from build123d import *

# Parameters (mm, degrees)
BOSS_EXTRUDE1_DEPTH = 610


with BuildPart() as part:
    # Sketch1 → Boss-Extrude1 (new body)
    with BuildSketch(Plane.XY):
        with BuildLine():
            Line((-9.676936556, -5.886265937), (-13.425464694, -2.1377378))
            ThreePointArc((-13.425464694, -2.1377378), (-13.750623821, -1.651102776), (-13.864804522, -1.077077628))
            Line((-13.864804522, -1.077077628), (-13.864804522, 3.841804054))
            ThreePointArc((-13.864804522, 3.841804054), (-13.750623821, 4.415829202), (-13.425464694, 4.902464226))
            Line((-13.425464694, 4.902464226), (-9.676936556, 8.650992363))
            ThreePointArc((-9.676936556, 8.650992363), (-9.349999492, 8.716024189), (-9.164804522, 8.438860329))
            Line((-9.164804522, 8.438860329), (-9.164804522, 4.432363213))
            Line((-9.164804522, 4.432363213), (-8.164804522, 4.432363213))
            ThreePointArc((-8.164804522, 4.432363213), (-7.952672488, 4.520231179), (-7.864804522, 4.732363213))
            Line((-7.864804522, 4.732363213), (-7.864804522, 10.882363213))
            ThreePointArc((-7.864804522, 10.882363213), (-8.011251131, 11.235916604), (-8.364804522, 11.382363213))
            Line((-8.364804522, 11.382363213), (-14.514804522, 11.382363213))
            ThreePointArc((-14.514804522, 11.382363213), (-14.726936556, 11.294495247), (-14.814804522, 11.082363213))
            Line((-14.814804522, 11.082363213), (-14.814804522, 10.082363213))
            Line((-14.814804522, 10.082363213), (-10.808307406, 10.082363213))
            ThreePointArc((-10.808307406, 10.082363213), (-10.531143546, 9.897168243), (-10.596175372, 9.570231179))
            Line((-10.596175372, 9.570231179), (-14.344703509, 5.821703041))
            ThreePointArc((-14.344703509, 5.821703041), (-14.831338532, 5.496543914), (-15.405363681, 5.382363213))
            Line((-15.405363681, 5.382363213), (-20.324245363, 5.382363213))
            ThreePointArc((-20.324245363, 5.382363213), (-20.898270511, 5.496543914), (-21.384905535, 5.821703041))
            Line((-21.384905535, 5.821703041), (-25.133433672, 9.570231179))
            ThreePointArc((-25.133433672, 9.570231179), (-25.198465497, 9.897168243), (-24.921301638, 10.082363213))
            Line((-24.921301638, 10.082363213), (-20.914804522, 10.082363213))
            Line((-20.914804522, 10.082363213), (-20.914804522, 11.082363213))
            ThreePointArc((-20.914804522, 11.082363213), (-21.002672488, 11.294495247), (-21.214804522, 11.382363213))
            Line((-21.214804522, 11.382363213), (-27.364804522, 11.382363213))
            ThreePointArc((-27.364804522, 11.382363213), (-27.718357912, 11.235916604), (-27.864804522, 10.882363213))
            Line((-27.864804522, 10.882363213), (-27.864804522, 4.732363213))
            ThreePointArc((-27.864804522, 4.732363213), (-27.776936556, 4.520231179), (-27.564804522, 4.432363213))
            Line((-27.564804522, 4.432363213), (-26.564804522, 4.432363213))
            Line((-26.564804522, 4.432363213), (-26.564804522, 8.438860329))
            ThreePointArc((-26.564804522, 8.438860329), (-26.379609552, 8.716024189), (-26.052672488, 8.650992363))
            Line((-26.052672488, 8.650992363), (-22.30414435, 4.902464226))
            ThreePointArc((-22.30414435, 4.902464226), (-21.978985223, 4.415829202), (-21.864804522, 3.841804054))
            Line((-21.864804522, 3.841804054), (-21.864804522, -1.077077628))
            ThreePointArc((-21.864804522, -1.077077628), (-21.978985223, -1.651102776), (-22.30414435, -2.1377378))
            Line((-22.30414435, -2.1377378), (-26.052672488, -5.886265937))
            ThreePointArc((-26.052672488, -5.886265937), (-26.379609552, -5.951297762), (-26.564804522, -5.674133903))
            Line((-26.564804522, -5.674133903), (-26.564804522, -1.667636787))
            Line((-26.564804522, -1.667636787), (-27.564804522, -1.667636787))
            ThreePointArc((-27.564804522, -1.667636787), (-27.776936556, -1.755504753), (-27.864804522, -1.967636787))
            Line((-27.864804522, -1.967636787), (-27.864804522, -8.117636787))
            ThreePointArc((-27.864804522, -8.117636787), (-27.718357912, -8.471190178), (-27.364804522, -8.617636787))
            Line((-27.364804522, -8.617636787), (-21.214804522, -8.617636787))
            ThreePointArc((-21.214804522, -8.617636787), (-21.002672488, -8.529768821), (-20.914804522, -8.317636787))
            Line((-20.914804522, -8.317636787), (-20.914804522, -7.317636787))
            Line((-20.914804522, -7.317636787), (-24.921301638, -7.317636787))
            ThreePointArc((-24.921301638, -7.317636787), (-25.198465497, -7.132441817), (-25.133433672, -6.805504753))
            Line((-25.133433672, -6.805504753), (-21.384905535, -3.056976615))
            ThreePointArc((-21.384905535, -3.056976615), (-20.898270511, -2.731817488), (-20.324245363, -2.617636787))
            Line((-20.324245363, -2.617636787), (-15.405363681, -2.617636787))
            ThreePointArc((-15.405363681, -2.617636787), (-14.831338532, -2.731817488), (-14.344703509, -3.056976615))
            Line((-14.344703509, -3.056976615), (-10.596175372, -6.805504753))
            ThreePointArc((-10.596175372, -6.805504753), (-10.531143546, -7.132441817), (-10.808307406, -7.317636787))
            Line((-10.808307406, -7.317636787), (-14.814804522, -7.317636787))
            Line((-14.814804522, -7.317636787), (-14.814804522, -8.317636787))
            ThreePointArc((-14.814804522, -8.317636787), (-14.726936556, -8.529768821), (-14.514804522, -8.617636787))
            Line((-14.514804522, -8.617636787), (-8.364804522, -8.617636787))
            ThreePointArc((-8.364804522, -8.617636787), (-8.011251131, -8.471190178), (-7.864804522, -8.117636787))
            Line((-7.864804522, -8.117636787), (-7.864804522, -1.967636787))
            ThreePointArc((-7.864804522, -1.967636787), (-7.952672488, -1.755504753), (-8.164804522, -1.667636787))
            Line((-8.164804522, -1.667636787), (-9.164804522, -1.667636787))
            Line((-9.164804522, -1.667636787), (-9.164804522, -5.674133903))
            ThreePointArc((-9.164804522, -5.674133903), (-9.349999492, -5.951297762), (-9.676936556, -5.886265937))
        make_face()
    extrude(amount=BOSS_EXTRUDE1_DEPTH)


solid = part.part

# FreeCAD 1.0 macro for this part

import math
import FreeCAD as App
import Part
import Sketcher

doc = App.newDocument("Part")
body = doc.addObject("PartDesign::Body", "Body")

sketch1 = body.newObject("Sketcher::SketchObject", "Sketch")
sketch1.AttachmentSupport = (doc.getObject("XY_Plane"), [""])
sketch1.MapMode = "FlatFace"
sketch1.addGeometry(Part.LineSegment(App.Vector(-9.676937, -5.886266, 0), App.Vector(-13.425465, -2.137738, 0)), False)
sketch1.addGeometry(Part.ArcOfCircle(Part.Circle(App.Vector(-12.364805, -1.077078, 0), App.Vector(0, 0, 1), 1.5), math.radians(180), math.radians(225)), False)
sketch1.addGeometry(Part.LineSegment(App.Vector(-13.864805, -1.077078, 0), App.Vector(-13.864805, 3.841804, 0)), False)
sketch1.addGeometry(Part.ArcOfCircle(Part.Circle(App.Vector(-12.364805, 3.841804, 0), App.Vector(0, 0, 1), 1.5), math.radians(135), math.radians(180)), False)
sketch1.addGeometry(Part.LineSegment(App.Vector(-13.425465, 4.902464, 0), App.Vector(-9.676937, 8.650992, 0)), False)
sketch1.addGeometry(Part.ArcOfCircle(Part.Circle(App.Vector(-9.464805, 8.43886, 0), App.Vector(0, 0, 1), 0.3), math.radians(0), math.radians(135)), False)
sketch1.addGeometry(Part.LineSegment(App.Vector(-9.164805, 8.43886, 0), App.Vector(-9.164805, 4.432363, 0)), False)
sketch1.addGeometry(Part.LineSegment(App.Vector(-9.164805, 4.432363, 0), App.Vector(-8.164805, 4.432363, 0)), False)
sketch1.addGeometry(Part.ArcOfCircle(Part.Circle(App.Vector(-8.164805, 4.732363, 0), App.Vector(0, 0, 1), 0.3), math.radians(-90), math.radians(0)), False)
sketch1.addGeometry(Part.LineSegment(App.Vector(-7.864805, 4.732363, 0), App.Vector(-7.864805, 10.882363, 0)), False)
sketch1.addGeometry(Part.ArcOfCircle(Part.Circle(App.Vector(-8.364805, 10.882363, 0), App.Vector(0, 0, 1), 0.5), math.radians(0), math.radians(90)), False)
sketch1.addGeometry(Part.LineSegment(App.Vector(-8.364805, 11.382363, 0), App.Vector(-14.514805, 11.382363, 0)), False)
sketch1.addGeometry(Part.ArcOfCircle(Part.Circle(App.Vector(-14.514805, 11.082363, 0), App.Vector(0, 0, 1), 0.3), math.radians(90), math.radians(180)), False)
sketch1.addGeometry(Part.LineSegment(App.Vector(-14.814805, 11.082363, 0), App.Vector(-14.814805, 10.082363, 0)), False)
sketch1.addGeometry(Part.LineSegment(App.Vector(-14.814805, 10.082363, 0), App.Vector(-10.808307, 10.082363, 0)), False)
sketch1.addGeometry(Part.ArcOfCircle(Part.Circle(App.Vector(-10.808307, 9.782363, 0), App.Vector(0, 0, 1), 0.3), math.radians(-45), math.radians(90)), False)
sketch1.addGeometry(Part.LineSegment(App.Vector(-10.596175, 9.570231, 0), App.Vector(-14.344704, 5.821703, 0)), False)
sketch1.addGeometry(Part.ArcOfCircle(Part.Circle(App.Vector(-15.405364, 6.882363, 0), App.Vector(0, 0, 1), 1.5), math.radians(-90), math.radians(-45)), False)
sketch1.addGeometry(Part.LineSegment(App.Vector(-15.405364, 5.382363, 0), App.Vector(-20.324245, 5.382363, 0)), False)
sketch1.addGeometry(Part.ArcOfCircle(Part.Circle(App.Vector(-20.324245, 6.882363, 0), App.Vector(0, 0, 1), 1.5), math.radians(-135), math.radians(-90)), False)
sketch1.addGeometry(Part.LineSegment(App.Vector(-21.384906, 5.821703, 0), App.Vector(-25.133434, 9.570231, 0)), False)
sketch1.addGeometry(Part.ArcOfCircle(Part.Circle(App.Vector(-24.921302, 9.782363, 0), App.Vector(0, 0, 1), 0.3), math.radians(90), math.radians(225)), False)
sketch1.addGeometry(Part.LineSegment(App.Vector(-24.921302, 10.082363, 0), App.Vector(-20.914805, 10.082363, 0)), False)
sketch1.addGeometry(Part.LineSegment(App.Vector(-20.914805, 10.082363, 0), App.Vector(-20.914805, 11.082363, 0)), False)
sketch1.addGeometry(Part.ArcOfCircle(Part.Circle(App.Vector(-21.214805, 11.082363, 0), App.Vector(0, 0, 1), 0.3), math.radians(0), math.radians(90)), False)
sketch1.addGeometry(Part.LineSegment(App.Vector(-21.214805, 11.382363, 0), App.Vector(-27.364805, 11.382363, 0)), False)
sketch1.addGeometry(Part.ArcOfCircle(Part.Circle(App.Vector(-27.364805, 10.882363, 0), App.Vector(0, 0, 1), 0.5), math.radians(90), math.radians(180)), False)
sketch1.addGeometry(Part.LineSegment(App.Vector(-27.864805, 10.882363, 0), App.Vector(-27.864805, 4.732363, 0)), False)
sketch1.addGeometry(Part.ArcOfCircle(Part.Circle(App.Vector(-27.564805, 4.732363, 0), App.Vector(0, 0, 1), 0.3), math.radians(-180), math.radians(-90)), False)
sketch1.addGeometry(Part.LineSegment(App.Vector(-27.564805, 4.432363, 0), App.Vector(-26.564805, 4.432363, 0)), False)
sketch1.addGeometry(Part.LineSegment(App.Vector(-26.564805, 4.432363, 0), App.Vector(-26.564805, 8.43886, 0)), False)
sketch1.addGeometry(Part.ArcOfCircle(Part.Circle(App.Vector(-26.264805, 8.43886, 0), App.Vector(0, 0, 1), 0.3), math.radians(45), math.radians(180)), False)
sketch1.addGeometry(Part.LineSegment(App.Vector(-26.052672, 8.650992, 0), App.Vector(-22.304144, 4.902464, 0)), False)
sketch1.addGeometry(Part.ArcOfCircle(Part.Circle(App.Vector(-23.364805, 3.841804, 0), App.Vector(0, 0, 1), 1.5), math.radians(0), math.radians(45)), False)
sketch1.addGeometry(Part.LineSegment(App.Vector(-21.864805, 3.841804, 0), App.Vector(-21.864805, -1.077078, 0)), False)
sketch1.addGeometry(Part.ArcOfCircle(Part.Circle(App.Vector(-23.364805, -1.077078, 0), App.Vector(0, 0, 1), 1.5), math.radians(-45), math.radians(0)), False)
sketch1.addGeometry(Part.LineSegment(App.Vector(-22.304144, -2.137738, 0), App.Vector(-26.052672, -5.886266, 0)), False)
sketch1.addGeometry(Part.ArcOfCircle(Part.Circle(App.Vector(-26.264805, -5.674134, 0), App.Vector(0, 0, 1), 0.3), math.radians(-180), math.radians(-45)), False)
sketch1.addGeometry(Part.LineSegment(App.Vector(-26.564805, -5.674134, 0), App.Vector(-26.564805, -1.667637, 0)), False)
sketch1.addGeometry(Part.LineSegment(App.Vector(-26.564805, -1.667637, 0), App.Vector(-27.564805, -1.667637, 0)), False)
sketch1.addGeometry(Part.ArcOfCircle(Part.Circle(App.Vector(-27.564805, -1.967637, 0), App.Vector(0, 0, 1), 0.3), math.radians(90), math.radians(180)), False)
sketch1.addGeometry(Part.LineSegment(App.Vector(-27.864805, -1.967637, 0), App.Vector(-27.864805, -8.117637, 0)), False)
sketch1.addGeometry(Part.ArcOfCircle(Part.Circle(App.Vector(-27.364805, -8.117637, 0), App.Vector(0, 0, 1), 0.5), math.radians(180), math.radians(270)), False)
sketch1.addGeometry(Part.LineSegment(App.Vector(-27.364805, -8.617637, 0), App.Vector(-21.214805, -8.617637, 0)), False)
sketch1.addGeometry(Part.ArcOfCircle(Part.Circle(App.Vector(-21.214805, -8.317637, 0), App.Vector(0, 0, 1), 0.3), math.radians(-90), math.radians(0)), False)
sketch1.addGeometry(Part.LineSegment(App.Vector(-20.914805, -8.317637, 0), App.Vector(-20.914805, -7.317637, 0)), False)
sketch1.addGeometry(Part.LineSegment(App.Vector(-20.914805, -7.317637, 0), App.Vector(-24.921302, -7.317637, 0)), False)
sketch1.addGeometry(Part.ArcOfCircle(Part.Circle(App.Vector(-24.921302, -7.017637, 0), App.Vector(0, 0, 1), 0.3), math.radians(135), math.radians(270)), False)
sketch1.addGeometry(Part.LineSegment(App.Vector(-25.133434, -6.805505, 0), App.Vector(-21.384906, -3.056977, 0)), False)
sketch1.addGeometry(Part.ArcOfCircle(Part.Circle(App.Vector(-20.324245, -4.117637, 0), App.Vector(0, 0, 1), 1.5), math.radians(90), math.radians(135)), False)
sketch1.addGeometry(Part.LineSegment(App.Vector(-20.324245, -2.617637, 0), App.Vector(-15.405364, -2.617637, 0)), False)
sketch1.addGeometry(Part.ArcOfCircle(Part.Circle(App.Vector(-15.405364, -4.117637, 0), App.Vector(0, 0, 1), 1.5), math.radians(45), math.radians(90)), False)
sketch1.addGeometry(Part.LineSegment(App.Vector(-14.344704, -3.056977, 0), App.Vector(-10.596175, -6.805505, 0)), False)
sketch1.addGeometry(Part.ArcOfCircle(Part.Circle(App.Vector(-10.808307, -7.017637, 0), App.Vector(0, 0, 1), 0.3), math.radians(-90), math.radians(45)), False)
sketch1.addGeometry(Part.LineSegment(App.Vector(-10.808307, -7.317637, 0), App.Vector(-14.814805, -7.317637, 0)), False)
sketch1.addGeometry(Part.LineSegment(App.Vector(-14.814805, -7.317637, 0), App.Vector(-14.814805, -8.317637, 0)), False)
sketch1.addGeometry(Part.ArcOfCircle(Part.Circle(App.Vector(-14.514805, -8.317637, 0), App.Vector(0, 0, 1), 0.3), math.radians(-180), math.radians(-90)), False)
sketch1.addGeometry(Part.LineSegment(App.Vector(-14.514805, -8.617637, 0), App.Vector(-8.364805, -8.617637, 0)), False)
sketch1.addGeometry(Part.ArcOfCircle(Part.Circle(App.Vector(-8.364805, -8.117637, 0), App.Vector(0, 0, 1), 0.5), math.radians(-90), math.radians(0)), False)
sketch1.addGeometry(Part.LineSegment(App.Vector(-7.864805, -8.117637, 0), App.Vector(-7.864805, -1.967637, 0)), False)
sketch1.addGeometry(Part.ArcOfCircle(Part.Circle(App.Vector(-8.164805, -1.967637, 0), App.Vector(0, 0, 1), 0.3), math.radians(0), math.radians(90)), False)
sketch1.addGeometry(Part.LineSegment(App.Vector(-8.164805, -1.667637, 0), App.Vector(-9.164805, -1.667637, 0)), False)
sketch1.addGeometry(Part.LineSegment(App.Vector(-9.164805, -1.667637, 0), App.Vector(-9.164805, -5.674134, 0)), False)
sketch1.addGeometry(Part.ArcOfCircle(Part.Circle(App.Vector(-9.464805, -5.674134, 0), App.Vector(0, 0, 1), 0.3), math.radians(-135), math.radians(0)), False)
sketch1.addConstraint(Sketcher.Constraint("Tangent", 0, 2, 1, 2))
sketch1.addConstraint(Sketcher.Constraint("Tangent", 1, 1, 2, 1))
sketch1.addConstraint(Sketcher.Constraint("Tangent", 2, 2, 3, 2))
sketch1.addConstraint(Sketcher.Constraint("Tangent", 3, 1, 4, 1))
sketch1.addConstraint(Sketcher.Constraint("Tangent", 4, 2, 5, 2))
sketch1.addConstraint(Sketcher.Constraint("Tangent", 5, 1, 6, 1))
sketch1.addConstraint(Sketcher.Constraint("Coincident", 6, 2, 7, 1))
sketch1.addConstraint(Sketcher.Constraint("Tangent", 7, 2, 8, 1))
sketch1.addConstraint(Sketcher.Constraint("Tangent", 8, 2, 9, 1))
sketch1.addConstraint(Sketcher.Constraint("Tangent", 9, 2, 10, 1))
sketch1.addConstraint(Sketcher.Constraint("Tangent", 10, 2, 11, 1))
sketch1.addConstraint(Sketcher.Constraint("Tangent", 11, 2, 12, 1))
sketch1.addConstraint(Sketcher.Constraint("Tangent", 12, 2, 13, 1))
sketch1.addConstraint(Sketcher.Constraint("Coincident", 13, 2, 14, 1))
sketch1.addConstraint(Sketcher.Constraint("Tangent", 14, 2, 15, 2))
sketch1.addConstraint(Sketcher.Constraint("Tangent", 15, 1, 16, 1))
sketch1.addConstraint(Sketcher.Constraint("Tangent", 16, 2, 17, 2))
sketch1.addConstraint(Sketcher.Constraint("Tangent", 17, 1, 18, 1))
sketch1.addConstraint(Sketcher.Constraint("Tangent", 18, 2, 19, 2))
sketch1.addConstraint(Sketcher.Constraint("Tangent", 19, 1, 20, 1))
sketch1.addConstraint(Sketcher.Constraint("Tangent", 20, 2, 21, 2))
sketch1.addConstraint(Sketcher.Constraint("Tangent", 21, 1, 22, 1))
sketch1.addConstraint(Sketcher.Constraint("Coincident", 22, 2, 23, 1))
sketch1.addConstraint(Sketcher.Constraint("Tangent", 23, 2, 24, 1))
sketch1.addConstraint(Sketcher.Constraint("Tangent", 24, 2, 25, 1))
sketch1.addConstraint(Sketcher.Constraint("Tangent", 25, 2, 26, 1))
sketch1.addConstraint(Sketcher.Constraint("Tangent", 26, 2, 27, 1))
sketch1.addConstraint(Sketcher.Constraint("Tangent", 27, 2, 28, 1))
sketch1.addConstraint(Sketcher.Constraint("Tangent", 28, 2, 29, 1))
sketch1.addConstraint(Sketcher.Constraint("Coincident", 29, 2, 30, 1))
sketch1.addConstraint(Sketcher.Constraint("Tangent", 30, 2, 31, 2))
sketch1.addConstraint(Sketcher.Constraint("Tangent", 31, 1, 32, 1))
sketch1.addConstraint(Sketcher.Constraint("Tangent", 32, 2, 33, 2))
sketch1.addConstraint(Sketcher.Constraint("Tangent", 33, 1, 34, 1))
sketch1.addConstraint(Sketcher.Constraint("Tangent", 34, 2, 35, 2))
sketch1.addConstraint(Sketcher.Constraint("Tangent", 35, 1, 36, 1))
sketch1.addConstraint(Sketcher.Constraint("Tangent", 36, 2, 37, 2))
sketch1.addConstraint(Sketcher.Constraint("Tangent", 37, 1, 38, 1))
sketch1.addConstraint(Sketcher.Constraint("Coincident", 38, 2, 39, 1))
sketch1.addConstraint(Sketcher.Constraint("Tangent", 39, 2, 40, 1))
sketch1.addConstraint(Sketcher.Constraint("Tangent", 40, 2, 41, 1))
sketch1.addConstraint(Sketcher.Constraint("Tangent", 41, 2, 42, 1))
sketch1.addConstraint(Sketcher.Constraint("Tangent", 42, 2, 43, 1))
sketch1.addConstraint(Sketcher.Constraint("Tangent", 43, 2, 44, 1))
sketch1.addConstraint(Sketcher.Constraint("Tangent", 44, 2, 45, 1))
sketch1.addConstraint(Sketcher.Constraint("Coincident", 45, 2, 46, 1))
sketch1.addConstraint(Sketcher.Constraint("Tangent", 46, 2, 47, 2))
sketch1.addConstraint(Sketcher.Constraint("Tangent", 47, 1, 48, 1))
sketch1.addConstraint(Sketcher.Constraint("Tangent", 48, 2, 49, 2))
sketch1.addConstraint(Sketcher.Constraint("Tangent", 49, 1, 50, 1))
sketch1.addConstraint(Sketcher.Constraint("Tangent", 50, 2, 51, 2))
sketch1.addConstraint(Sketcher.Constraint("Tangent", 51, 1, 52, 1))
sketch1.addConstraint(Sketcher.Constraint("Tangent", 52, 2, 53, 2))
sketch1.addConstraint(Sketcher.Constraint("Tangent", 53, 1, 54, 1))
sketch1.addConstraint(Sketcher.Constraint("Coincident", 54, 2, 55, 1))
sketch1.addConstraint(Sketcher.Constraint("Tangent", 55, 2, 56, 1))
sketch1.addConstraint(Sketcher.Constraint("Tangent", 56, 2, 57, 1))
sketch1.addConstraint(Sketcher.Constraint("Tangent", 57, 2, 58, 1))
sketch1.addConstraint(Sketcher.Constraint("Tangent", 58, 2, 59, 1))
sketch1.addConstraint(Sketcher.Constraint("Tangent", 59, 2, 60, 1))
sketch1.addConstraint(Sketcher.Constraint("Tangent", 60, 2, 61, 1))
sketch1.addConstraint(Sketcher.Constraint("Coincident", 61, 2, 62, 1))
sketch1.addConstraint(Sketcher.Constraint("Tangent", 62, 2, 63, 2))
sketch1.addConstraint(Sketcher.Constraint("Tangent", 63, 1, 0, 1))
sketch1.addConstraint(Sketcher.Constraint("Vertical", 2))
sketch1.addConstraint(Sketcher.Constraint("Vertical", 6))
sketch1.addConstraint(Sketcher.Constraint("Horizontal", 7))
sketch1.addConstraint(Sketcher.Constraint("Vertical", 9))
sketch1.addConstraint(Sketcher.Constraint("Horizontal", 11))
sketch1.addConstraint(Sketcher.Constraint("Vertical", 13))
sketch1.addConstraint(Sketcher.Constraint("Horizontal", 14))
sketch1.addConstraint(Sketcher.Constraint("Horizontal", 18))
sketch1.addConstraint(Sketcher.Constraint("Horizontal", 22))
sketch1.addConstraint(Sketcher.Constraint("Vertical", 23))
sketch1.addConstraint(Sketcher.Constraint("Horizontal", 25))
sketch1.addConstraint(Sketcher.Constraint("Vertical", 27))
sketch1.addConstraint(Sketcher.Constraint("Horizontal", 29))
sketch1.addConstraint(Sketcher.Constraint("Vertical", 30))
sketch1.addConstraint(Sketcher.Constraint("Vertical", 34))
sketch1.addConstraint(Sketcher.Constraint("Vertical", 38))
sketch1.addConstraint(Sketcher.Constraint("Horizontal", 39))
sketch1.addConstraint(Sketcher.Constraint("Vertical", 41))
sketch1.addConstraint(Sketcher.Constraint("Horizontal", 43))
sketch1.addConstraint(Sketcher.Constraint("Vertical", 45))
sketch1.addConstraint(Sketcher.Constraint("Horizontal", 46))
sketch1.addConstraint(Sketcher.Constraint("Horizontal", 50))
sketch1.addConstraint(Sketcher.Constraint("Horizontal", 54))
sketch1.addConstraint(Sketcher.Constraint("Vertical", 55))
sketch1.addConstraint(Sketcher.Constraint("Horizontal", 57))
sketch1.addConstraint(Sketcher.Constraint("Vertical", 59))
sketch1.addConstraint(Sketcher.Constraint("Horizontal", 61))
sketch1.addConstraint(Sketcher.Constraint("Vertical", 62))
sketch1.addConstraint(Sketcher.Constraint("Equal", 1, 3))
sketch1.addConstraint(Sketcher.Constraint("Equal", 5, 8))
sketch1.addConstraint(Sketcher.Constraint("Equal", 8, 12))
sketch1.addConstraint(Sketcher.Constraint("Equal", 12, 15))
sketch1.addConstraint(Sketcher.Constraint("Equal", 3, 17))
sketch1.addConstraint(Sketcher.Constraint("Equal", 17, 19))
sketch1.addConstraint(Sketcher.Constraint("Equal", 15, 21))
sketch1.addConstraint(Sketcher.Constraint("Equal", 21, 24))
sketch1.addConstraint(Sketcher.Constraint("Equal", 10, 26))
sketch1.addConstraint(Sketcher.Constraint("Equal", 24, 28))
sketch1.addConstraint(Sketcher.Constraint("Equal", 28, 31))
sketch1.addConstraint(Sketcher.Constraint("Equal", 19, 33))
sketch1.addConstraint(Sketcher.Constraint("Equal", 33, 35))
sketch1.addConstraint(Sketcher.Constraint("Equal", 31, 37))
sketch1.addConstraint(Sketcher.Constraint("Equal", 37, 40))
sketch1.addConstraint(Sketcher.Constraint("Equal", 26, 42))
sketch1.addConstraint(Sketcher.Constraint("Equal", 40, 44))
sketch1.addConstraint(Sketcher.Constraint("Equal", 44, 47))
sketch1.addConstraint(Sketcher.Constraint("Equal", 35, 49))
sketch1.addConstraint(Sketcher.Constraint("Equal", 49, 51))
sketch1.addConstraint(Sketcher.Constraint("Equal", 47, 53))
sketch1.addConstraint(Sketcher.Constraint("Equal", 53, 56))
sketch1.addConstraint(Sketcher.Constraint("Equal", 42, 58))
sketch1.addConstraint(Sketcher.Constraint("Equal", 56, 60))
sketch1.addConstraint(Sketcher.Constraint("Equal", 60, 63))
sketch1.addConstraint(Sketcher.Constraint("Perpendicular", 0, 4))
sketch1.addConstraint(Sketcher.Constraint("Parallel", 4, 16))
sketch1.addConstraint(Sketcher.Constraint("Perpendicular", 16, 20))
sketch1.addConstraint(Sketcher.Constraint("Parallel", 20, 32))
sketch1.addConstraint(Sketcher.Constraint("Perpendicular", 32, 36))
sketch1.addConstraint(Sketcher.Constraint("Parallel", 36, 48))
sketch1.addConstraint(Sketcher.Constraint("Perpendicular", 48, 52))
sketch1.addConstraint(Sketcher.Constraint("Horizontal", 15, 3, 21, 3))
sketch1.addConstraint(Sketcher.Constraint("Horizontal", 12, 3, 24, 3))
sketch1.addConstraint(Sketcher.Constraint("Horizontal", 8, 3, 28, 3))
sketch1.addConstraint(Sketcher.Constraint("Horizontal", 5, 3, 31, 3))
sketch1.addConstraint(Sketcher.Constraint("Horizontal", 3, 3, 33, 3))
sketch1.addConstraint(Sketcher.Constraint("Horizontal", 1, 3, 35, 3))
sketch1.addConstraint(Sketcher.Constraint("Horizontal", 47, 3, 53, 3))
sketch1.addConstraint(Sketcher.Constraint("Horizontal", 44, 3, 56, 3))
sketch1.addConstraint(Sketcher.Constraint("Horizontal", 40, 3, 60, 3))
sketch1.addConstraint(Sketcher.Constraint("Horizontal", 37, 3, 63, 3))
sketch1.addConstraint(Sketcher.Constraint("Horizontal", 16, 2, 19, 1))
sketch1.addConstraint(Sketcher.Constraint("Vertical", 31, 3, 37, 3))
sketch1.addConstraint(Sketcher.Constraint("Vertical", 28, 3, 40, 3))
sketch1.addConstraint(Sketcher.Constraint("Vertical", 24, 3, 44, 3))
sketch1.addConstraint(Sketcher.Constraint("Vertical", 21, 3, 47, 3))
sketch1.addConstraint(Sketcher.Constraint("Vertical", 19, 3, 49, 3))
sketch1.addConstraint(Sketcher.Constraint("Vertical", 17, 3, 51, 3))
sketch1.addConstraint(Sketcher.Constraint("Vertical", 12, 3, 56, 3))
sketch1.addConstraint(Sketcher.Constraint("Vertical", 10, 3, 58, 3))
sketch1.addConstraint(Sketcher.Constraint("Equal", 14, 22))
sketch1.addConstraint(Sketcher.Constraint("Equal", 11, 25))
sketch1.addConstraint(Sketcher.Constraint("Equal", 7, 29))
sketch1.addConstraint(Sketcher.Constraint("Equal", 50, 2))
sketch1.addConstraint(Sketcher.Constraint("Equal", 54, 6))
sketch1.addConstraint(Sketcher.Constraint("Equal", 57, 9))
sketch1.addConstraint(Sketcher.Constraint("Equal", 61, 13))
sketch1.addConstraint(Sketcher.Constraint("Equal", 30, 38))
sketch1.addConstraint(Sketcher.Constraint("Equal", 27, 41))
sketch1.addConstraint(Sketcher.Constraint("Equal", 23, 45))
sketch1.addConstraint(Sketcher.Constraint("Equal", 4, 16))
sketch1.addConstraint(Sketcher.Constraint("Radius", 1, 1.5))
sketch1.addConstraint(Sketcher.Constraint("Radius", 5, 0.3))
sketch1.addConstraint(Sketcher.Constraint("Radius", 10, 0.5))
sketch1.addConstraint(Sketcher.Constraint("DistanceX", 7, 1, 7, 2, 1.0))
sketch1.addConstraint(Sketcher.Constraint("DistanceX", 11, 2, 11, 1, 6.15))
sketch1.addConstraint(Sketcher.Constraint("DistanceX", 18, 2, 18, 1, 4.918882))
sketch1.addConstraint(Sketcher.Constraint("DistanceX", 21, 3, -1, 1, 24.921302))
sketch1.addConstraint(Sketcher.Constraint("Distance", 0, 5.301219))
sketch1.addConstraint(Sketcher.Constraint("DistanceX", 14, 1, 14, 2, 4.006497))
sketch1.addConstraint(Sketcher.Constraint("DistanceY", -1, 1, 5, 3, 8.43886))
pad1 = body.newObject("PartDesign::Pad", "Pad")
pad1.Profile = sketch1
pad1.Length = 610

doc.recompute()
